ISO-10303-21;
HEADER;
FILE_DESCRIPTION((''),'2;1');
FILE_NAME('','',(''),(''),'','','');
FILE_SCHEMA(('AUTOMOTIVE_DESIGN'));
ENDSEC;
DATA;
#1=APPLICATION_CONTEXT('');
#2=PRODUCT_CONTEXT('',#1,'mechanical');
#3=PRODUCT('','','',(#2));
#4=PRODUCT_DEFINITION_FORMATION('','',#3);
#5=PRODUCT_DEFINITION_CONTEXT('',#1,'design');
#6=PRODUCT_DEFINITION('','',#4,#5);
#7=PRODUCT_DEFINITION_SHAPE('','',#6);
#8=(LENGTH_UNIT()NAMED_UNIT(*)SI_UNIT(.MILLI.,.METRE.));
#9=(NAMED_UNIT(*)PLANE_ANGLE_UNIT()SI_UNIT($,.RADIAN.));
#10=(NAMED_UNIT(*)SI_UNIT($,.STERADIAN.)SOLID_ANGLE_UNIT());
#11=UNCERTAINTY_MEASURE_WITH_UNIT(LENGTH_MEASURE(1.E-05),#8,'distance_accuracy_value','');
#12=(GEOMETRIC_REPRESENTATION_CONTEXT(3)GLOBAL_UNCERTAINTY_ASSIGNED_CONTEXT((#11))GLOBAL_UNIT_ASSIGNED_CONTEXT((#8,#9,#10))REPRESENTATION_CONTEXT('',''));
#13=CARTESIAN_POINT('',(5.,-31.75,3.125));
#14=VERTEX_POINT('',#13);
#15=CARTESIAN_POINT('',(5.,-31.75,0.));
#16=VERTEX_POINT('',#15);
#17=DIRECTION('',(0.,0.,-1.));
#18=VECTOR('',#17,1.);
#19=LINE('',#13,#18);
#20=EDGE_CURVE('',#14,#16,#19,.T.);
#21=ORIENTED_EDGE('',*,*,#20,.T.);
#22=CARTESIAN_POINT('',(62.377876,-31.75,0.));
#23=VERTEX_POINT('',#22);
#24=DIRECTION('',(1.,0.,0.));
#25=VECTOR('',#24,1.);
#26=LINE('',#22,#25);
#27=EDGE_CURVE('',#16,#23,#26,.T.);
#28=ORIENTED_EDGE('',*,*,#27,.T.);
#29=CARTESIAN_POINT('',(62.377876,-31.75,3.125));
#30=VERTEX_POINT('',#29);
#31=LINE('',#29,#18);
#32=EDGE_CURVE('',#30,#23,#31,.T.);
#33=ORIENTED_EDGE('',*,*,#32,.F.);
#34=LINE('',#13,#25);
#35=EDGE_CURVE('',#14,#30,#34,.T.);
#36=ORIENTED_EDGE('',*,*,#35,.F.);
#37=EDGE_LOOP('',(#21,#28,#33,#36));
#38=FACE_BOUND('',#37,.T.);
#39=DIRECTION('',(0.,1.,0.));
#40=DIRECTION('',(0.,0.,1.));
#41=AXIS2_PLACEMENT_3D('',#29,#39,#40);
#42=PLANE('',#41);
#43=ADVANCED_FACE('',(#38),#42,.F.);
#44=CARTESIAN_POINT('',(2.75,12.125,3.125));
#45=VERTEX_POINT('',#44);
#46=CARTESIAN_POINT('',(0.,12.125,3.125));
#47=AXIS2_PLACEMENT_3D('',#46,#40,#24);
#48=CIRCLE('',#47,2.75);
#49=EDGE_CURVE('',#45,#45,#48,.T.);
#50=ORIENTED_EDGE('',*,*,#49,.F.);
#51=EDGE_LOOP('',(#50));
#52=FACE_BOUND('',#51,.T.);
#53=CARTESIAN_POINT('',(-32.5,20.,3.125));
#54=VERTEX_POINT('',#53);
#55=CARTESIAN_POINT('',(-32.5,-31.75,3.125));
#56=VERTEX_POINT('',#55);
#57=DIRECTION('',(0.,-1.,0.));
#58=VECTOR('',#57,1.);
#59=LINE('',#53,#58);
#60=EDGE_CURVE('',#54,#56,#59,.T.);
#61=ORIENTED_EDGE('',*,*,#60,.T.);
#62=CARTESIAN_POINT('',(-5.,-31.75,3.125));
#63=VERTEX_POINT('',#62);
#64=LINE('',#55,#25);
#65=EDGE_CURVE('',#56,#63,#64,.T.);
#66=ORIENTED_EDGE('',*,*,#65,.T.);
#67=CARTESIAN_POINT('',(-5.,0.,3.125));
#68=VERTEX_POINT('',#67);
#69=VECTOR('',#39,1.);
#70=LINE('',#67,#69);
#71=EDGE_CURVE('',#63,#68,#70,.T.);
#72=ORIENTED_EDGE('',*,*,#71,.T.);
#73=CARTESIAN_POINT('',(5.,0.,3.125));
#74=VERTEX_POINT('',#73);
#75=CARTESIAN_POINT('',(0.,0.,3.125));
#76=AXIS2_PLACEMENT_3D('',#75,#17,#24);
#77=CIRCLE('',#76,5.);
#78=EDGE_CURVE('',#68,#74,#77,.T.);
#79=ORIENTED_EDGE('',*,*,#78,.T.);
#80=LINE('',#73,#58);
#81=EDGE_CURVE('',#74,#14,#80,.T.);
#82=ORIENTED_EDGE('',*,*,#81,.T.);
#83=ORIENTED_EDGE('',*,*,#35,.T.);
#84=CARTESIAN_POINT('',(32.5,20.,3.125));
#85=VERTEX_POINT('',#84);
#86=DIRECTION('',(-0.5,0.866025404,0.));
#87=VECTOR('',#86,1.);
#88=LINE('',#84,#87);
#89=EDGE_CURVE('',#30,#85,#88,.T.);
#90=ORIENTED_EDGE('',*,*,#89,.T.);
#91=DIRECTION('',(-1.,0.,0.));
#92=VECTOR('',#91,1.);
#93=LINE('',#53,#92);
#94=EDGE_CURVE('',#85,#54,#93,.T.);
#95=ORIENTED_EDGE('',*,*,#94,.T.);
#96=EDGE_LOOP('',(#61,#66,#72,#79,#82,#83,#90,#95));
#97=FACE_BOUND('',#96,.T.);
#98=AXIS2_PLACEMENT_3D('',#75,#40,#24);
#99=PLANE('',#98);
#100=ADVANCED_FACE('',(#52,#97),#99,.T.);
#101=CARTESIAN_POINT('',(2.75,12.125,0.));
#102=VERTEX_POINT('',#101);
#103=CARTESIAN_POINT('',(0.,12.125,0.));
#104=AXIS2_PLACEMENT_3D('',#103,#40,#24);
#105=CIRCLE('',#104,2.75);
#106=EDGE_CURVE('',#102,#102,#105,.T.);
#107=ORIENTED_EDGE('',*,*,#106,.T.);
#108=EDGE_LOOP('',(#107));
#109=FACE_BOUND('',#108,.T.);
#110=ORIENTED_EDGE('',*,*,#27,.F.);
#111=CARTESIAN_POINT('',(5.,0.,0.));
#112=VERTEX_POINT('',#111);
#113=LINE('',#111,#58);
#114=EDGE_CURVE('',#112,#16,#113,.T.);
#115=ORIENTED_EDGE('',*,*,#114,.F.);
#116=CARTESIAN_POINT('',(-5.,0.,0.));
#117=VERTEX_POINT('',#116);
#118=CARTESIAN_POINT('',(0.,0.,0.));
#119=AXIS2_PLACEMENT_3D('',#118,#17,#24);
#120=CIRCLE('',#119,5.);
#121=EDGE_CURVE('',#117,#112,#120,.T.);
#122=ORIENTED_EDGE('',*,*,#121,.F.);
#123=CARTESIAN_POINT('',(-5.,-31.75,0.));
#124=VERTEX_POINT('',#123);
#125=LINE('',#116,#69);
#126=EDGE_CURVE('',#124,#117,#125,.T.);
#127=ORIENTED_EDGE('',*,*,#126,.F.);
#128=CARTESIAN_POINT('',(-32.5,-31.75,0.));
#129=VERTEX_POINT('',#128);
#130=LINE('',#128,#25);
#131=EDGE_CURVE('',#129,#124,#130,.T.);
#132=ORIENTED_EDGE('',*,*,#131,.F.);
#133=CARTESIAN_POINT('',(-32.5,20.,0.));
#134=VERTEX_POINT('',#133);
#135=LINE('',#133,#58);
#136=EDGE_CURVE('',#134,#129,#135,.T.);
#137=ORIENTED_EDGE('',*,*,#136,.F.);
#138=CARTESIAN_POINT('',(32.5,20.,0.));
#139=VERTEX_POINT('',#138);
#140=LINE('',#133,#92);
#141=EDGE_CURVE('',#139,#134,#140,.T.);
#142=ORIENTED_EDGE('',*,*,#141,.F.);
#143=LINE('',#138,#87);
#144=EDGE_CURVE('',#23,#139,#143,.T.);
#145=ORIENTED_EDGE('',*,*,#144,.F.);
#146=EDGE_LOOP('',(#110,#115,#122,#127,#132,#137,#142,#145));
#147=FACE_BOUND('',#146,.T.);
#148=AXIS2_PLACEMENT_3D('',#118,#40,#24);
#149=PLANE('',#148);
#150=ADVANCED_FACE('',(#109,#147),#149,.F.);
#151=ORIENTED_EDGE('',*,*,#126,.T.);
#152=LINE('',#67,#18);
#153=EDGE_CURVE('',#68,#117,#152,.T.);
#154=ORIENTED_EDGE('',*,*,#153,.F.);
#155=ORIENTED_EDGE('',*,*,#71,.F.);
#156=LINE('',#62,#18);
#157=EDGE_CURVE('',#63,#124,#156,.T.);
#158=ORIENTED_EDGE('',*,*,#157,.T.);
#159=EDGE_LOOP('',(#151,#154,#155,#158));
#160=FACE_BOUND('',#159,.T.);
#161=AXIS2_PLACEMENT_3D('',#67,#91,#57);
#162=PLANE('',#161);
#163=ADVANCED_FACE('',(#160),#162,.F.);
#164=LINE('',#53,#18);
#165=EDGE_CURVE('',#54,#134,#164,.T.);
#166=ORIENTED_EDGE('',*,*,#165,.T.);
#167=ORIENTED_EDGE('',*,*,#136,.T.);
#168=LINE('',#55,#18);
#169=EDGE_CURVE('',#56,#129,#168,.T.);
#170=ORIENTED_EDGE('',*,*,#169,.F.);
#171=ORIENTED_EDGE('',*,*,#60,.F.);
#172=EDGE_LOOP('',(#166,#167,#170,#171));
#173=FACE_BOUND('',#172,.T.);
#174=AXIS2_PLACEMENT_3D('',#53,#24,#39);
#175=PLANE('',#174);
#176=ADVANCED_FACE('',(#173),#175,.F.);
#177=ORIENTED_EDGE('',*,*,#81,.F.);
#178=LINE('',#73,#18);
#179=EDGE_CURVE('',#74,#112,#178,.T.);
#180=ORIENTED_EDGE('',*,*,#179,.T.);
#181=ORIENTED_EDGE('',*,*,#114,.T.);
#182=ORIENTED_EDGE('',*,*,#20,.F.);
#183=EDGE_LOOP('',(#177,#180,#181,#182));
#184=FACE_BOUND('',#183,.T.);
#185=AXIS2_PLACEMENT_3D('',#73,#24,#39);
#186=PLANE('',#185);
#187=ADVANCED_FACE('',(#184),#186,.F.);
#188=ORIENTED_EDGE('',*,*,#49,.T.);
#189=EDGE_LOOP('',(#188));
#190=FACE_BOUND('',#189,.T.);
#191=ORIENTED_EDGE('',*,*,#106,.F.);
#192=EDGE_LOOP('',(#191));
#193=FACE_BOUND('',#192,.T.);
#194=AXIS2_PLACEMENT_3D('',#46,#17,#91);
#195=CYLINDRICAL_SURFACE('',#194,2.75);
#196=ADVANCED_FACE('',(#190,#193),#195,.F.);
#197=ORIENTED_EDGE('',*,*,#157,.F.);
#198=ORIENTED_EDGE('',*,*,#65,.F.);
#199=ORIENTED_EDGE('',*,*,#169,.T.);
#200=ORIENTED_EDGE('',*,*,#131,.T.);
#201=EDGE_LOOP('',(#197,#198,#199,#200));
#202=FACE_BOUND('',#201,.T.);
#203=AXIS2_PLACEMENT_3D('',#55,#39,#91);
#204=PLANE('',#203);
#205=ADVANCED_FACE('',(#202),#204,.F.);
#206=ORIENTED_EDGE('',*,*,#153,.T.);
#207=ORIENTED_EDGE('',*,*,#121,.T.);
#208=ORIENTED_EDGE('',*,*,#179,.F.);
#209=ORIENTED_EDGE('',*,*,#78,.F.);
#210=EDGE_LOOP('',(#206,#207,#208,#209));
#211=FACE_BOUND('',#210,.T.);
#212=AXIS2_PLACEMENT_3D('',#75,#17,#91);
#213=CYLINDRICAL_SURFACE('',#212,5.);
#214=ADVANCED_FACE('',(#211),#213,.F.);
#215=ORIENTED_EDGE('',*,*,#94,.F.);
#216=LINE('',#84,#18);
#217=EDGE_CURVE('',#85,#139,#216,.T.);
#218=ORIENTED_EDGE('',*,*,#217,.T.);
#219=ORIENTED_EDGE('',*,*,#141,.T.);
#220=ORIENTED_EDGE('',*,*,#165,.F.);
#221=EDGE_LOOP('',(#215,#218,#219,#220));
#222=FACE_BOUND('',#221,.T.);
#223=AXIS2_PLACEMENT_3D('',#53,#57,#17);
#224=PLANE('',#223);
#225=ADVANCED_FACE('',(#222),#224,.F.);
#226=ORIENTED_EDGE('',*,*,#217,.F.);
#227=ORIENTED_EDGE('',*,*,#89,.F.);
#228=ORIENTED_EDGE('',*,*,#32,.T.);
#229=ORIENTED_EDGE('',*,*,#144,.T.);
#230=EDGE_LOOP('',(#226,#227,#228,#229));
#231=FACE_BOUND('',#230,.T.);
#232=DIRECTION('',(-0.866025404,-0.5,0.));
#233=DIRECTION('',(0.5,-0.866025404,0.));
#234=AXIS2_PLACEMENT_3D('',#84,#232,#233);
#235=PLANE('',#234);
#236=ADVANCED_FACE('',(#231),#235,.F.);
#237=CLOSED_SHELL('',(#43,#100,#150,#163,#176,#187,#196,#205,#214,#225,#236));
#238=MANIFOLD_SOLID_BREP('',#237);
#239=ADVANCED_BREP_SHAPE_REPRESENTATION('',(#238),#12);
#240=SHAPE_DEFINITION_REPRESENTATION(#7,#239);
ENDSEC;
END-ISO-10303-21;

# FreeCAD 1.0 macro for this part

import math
import FreeCAD as App
import Part
import Sketcher
from FreeCAD import Vector
Q = App.Units.Quantity

doc = App.newDocument("Part")
params = doc.addObject("Spreadsheet::Sheet", "Params")
for row, (alias, value) in enumerate([
    ("sketch1_radius", "5 mm"),
    ("sketch1_diameter", "5.5 mm"),
    ("sketch1_width", "65 mm"),
    ("sketch1_width2", "27.5 mm"),
    ("sketch1_height", "51.75 mm"),
    ("pad1_length", "3.125 mm"),
], start=1):
    params.set(f"A{row}", alias)
    params.set(f"B{row}", "=" + value)
    params.setAlias(f"B{row}", alias)

body = doc.addObject("PartDesign::Body", "Body")

# Sketch on XY plane
sketch1 = body.newObject("Sketcher::SketchObject", "Sketch")
sketch1.AttachmentSupport = (doc.getObject("XY_Plane"), [""])
sketch1.MapMode = "FlatFace"
sketch1.addGeometry([
    Part.LineSegment(Vector(32.5, 20, 0), Vector(-32.5, 20, 0)),  # 0
    Part.LineSegment(Vector(-32.5, 20, 0), Vector(-32.5, -31.8, 0)),  # 1
    Part.LineSegment(Vector(-32.5, -31.8, 0), Vector(-5, -31.8, 0)),  # 2
    Part.LineSegment(Vector(-5, -31.8, 0), Vector(-5, 0, 0)),  # 3
    Part.ArcOfCircle(Part.Circle(Vector(0, 0, 0), Vector(0, 0, 1), 5), math.radians(0), math.radians(180)),  # 4
    Part.LineSegment(Vector(5, 0, 0), Vector(5, -31.8, 0)),  # 5
    Part.LineSegment(Vector(5, -31.8, 0), Vector(62.4, -31.8, 0)),  # 6
    Part.LineSegment(Vector(62.4, -31.8, 0), Vector(32.5, 20, 0)),  # 7
    Part.Circle(Vector(0, 12.1, 0), Vector(0, 0, 1), 2.8),  # 8
], False)
sketch1.addConstraint([
    Sketcher.Constraint("Coincident", 0, 2, 1, 1),
    Sketcher.Constraint("Coincident", 1, 2, 2, 1),
    Sketcher.Constraint("Coincident", 2, 2, 3, 1),
    Sketcher.Constraint("Tangent", 3, 2, 4, 2),
    Sketcher.Constraint("Tangent", 4, 1, 5, 1),
    Sketcher.Constraint("Coincident", 5, 2, 6, 1),
    Sketcher.Constraint("Coincident", 6, 2, 7, 1),
    Sketcher.Constraint("Coincident", 7, 2, 0, 1),
    Sketcher.Constraint("Horizontal", 0),
    Sketcher.Constraint("Vertical", 1),
    Sketcher.Constraint("Horizontal", 2),
    Sketcher.Constraint("Vertical", 3),
    Sketcher.Constraint("Vertical", 5),
    Sketcher.Constraint("Horizontal", 6),
    Sketcher.Constraint("Coincident", 4, 3, -1, 1),
    Sketcher.Constraint("PointOnObject", 8, 3, -2),
    Sketcher.Constraint("Horizontal", 2, 2, 5, 2),
    Sketcher.Constraint("Radius", 4, Q("5 mm")),
    Sketcher.Constraint("Diameter", 8, Q("5.5 mm")),
    Sketcher.Constraint("DistanceX", 0, 2, 0, 1, Q("65 mm")),
    Sketcher.Constraint("Angle", 7, Q("120 deg")),
    Sketcher.Constraint("DistanceX", 2, 1, 2, 2, Q("27.5 mm")),
    Sketcher.Constraint("DistanceY", -1, 1, 0, 2, Q("20 mm")),
    Sketcher.Constraint("DistanceY", 1, 2, 1, 1, Q("51.75 mm")),
    Sketcher.Constraint("DistanceY", -1, 1, 8, 3, Q("12.125 mm")),
])
sketch1.setExpression("Constraints[17]", "Params.sketch1_radius")
sketch1.setExpression("Constraints[18]", "Params.sketch1_diameter")
sketch1.setExpression("Constraints[19]", "Params.sketch1_width")
sketch1.setExpression("Constraints[21]", "Params.sketch1_width2")
sketch1.setExpression("Constraints[23]", "Params.sketch1_height")
pad1 = body.newObject("PartDesign::Pad", "Pad")
pad1.Profile = sketch1
pad1.setExpression("Length", "Params.pad1_length")

doc.recompute()
